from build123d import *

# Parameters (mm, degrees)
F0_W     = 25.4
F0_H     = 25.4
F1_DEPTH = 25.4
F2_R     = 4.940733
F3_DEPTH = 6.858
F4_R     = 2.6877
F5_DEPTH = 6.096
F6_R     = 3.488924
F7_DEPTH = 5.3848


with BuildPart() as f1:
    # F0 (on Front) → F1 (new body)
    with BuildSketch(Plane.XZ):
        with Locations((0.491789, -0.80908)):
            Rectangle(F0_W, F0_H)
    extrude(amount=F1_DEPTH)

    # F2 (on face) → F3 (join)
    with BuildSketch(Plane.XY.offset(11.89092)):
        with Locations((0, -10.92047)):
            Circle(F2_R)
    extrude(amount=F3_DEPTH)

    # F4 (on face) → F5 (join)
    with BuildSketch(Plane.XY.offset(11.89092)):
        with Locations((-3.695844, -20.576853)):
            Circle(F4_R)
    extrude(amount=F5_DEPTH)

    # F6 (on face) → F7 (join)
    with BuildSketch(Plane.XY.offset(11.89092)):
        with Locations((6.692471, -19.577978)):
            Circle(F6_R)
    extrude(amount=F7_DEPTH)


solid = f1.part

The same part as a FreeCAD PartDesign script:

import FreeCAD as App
import Part
import Sketcher

V = App.Vector
Q = App.Units.Quantity

doc = App.newDocument("Part")
body = doc.addObject("PartDesign::Body", "Body")

# Sketch on XZ plane
sketch1 = body.newObject("Sketcher::SketchObject", "Sketch")
sketch1.AttachmentSupport = (doc.getObject("XZ_Plane"), [""])
sketch1.MapMode = "FlatFace"
sketch1.addGeometry(Part.LineSegment(V(-12, 12, 0), V(-12, -14, 0)), False)
sketch1.addGeometry(Part.LineSegment(V(-12, -14, 0), V(13, -14, 0)), False)
sketch1.addGeometry(Part.LineSegment(V(13, -14, 0), V(13, 12, 0)), False)
sketch1.addGeometry(Part.LineSegment(V(13, 12, 0), V(-12, 12, 0)), False)
sketch1.addConstraint(Sketcher.Constraint("Coincident", 0, 2, 1, 1))
sketch1.addConstraint(Sketcher.Constraint("Coincident", 1, 2, 2, 1))
sketch1.addConstraint(Sketcher.Constraint("Coincident", 2, 2, 3, 1))
sketch1.addConstraint(Sketcher.Constraint("Coincident", 3, 2, 0, 1))
sketch1.addConstraint(Sketcher.Constraint("Vertical", 0))
sketch1.addConstraint(Sketcher.Constraint("Horizontal", 1))
sketch1.addConstraint(Sketcher.Constraint("Vertical", 2))
sketch1.addConstraint(Sketcher.Constraint("Horizontal", 3))
sketch1.addConstraint(Sketcher.Constraint("Equal", 3, 0))
sketch1.addConstraint(Sketcher.Constraint("DistanceX", 1, 1, 1, 2, Q("1 in")))
sketch1.addConstraint(Sketcher.Constraint("DistanceX", 0, 2, -1, 1, 12.208211))
sketch1.addConstraint(Sketcher.Constraint("DistanceY", 0, 2, -1, 1, 13.50908))
pad1 = body.newObject("PartDesign::Pad", "Pad")
pad1.Profile = sketch1
pad1.Length = Q("1 in")

# Sketch on XY plane
sketch2 = body.newObject("Sketcher::SketchObject", "Sketch001")
sketch2.AttachmentSupport = (doc.getObject("XY_Plane"), [""])
sketch2.MapMode = "FlatFace"
sketch2.AttachmentOffset = App.Placement(V(0, 0, 11.89092), App.Rotation())
sketch2.addGeometry(Part.Circle(V(0, -10.9, 0), V(0, 0, 1), 4.9), False)
sketch2.addConstraint(Sketcher.Constraint("PointOnObject", 0, 3, -2))
sketch2.addConstraint(Sketcher.Constraint("Diameter", 0, 9.881466))
sketch2.addConstraint(Sketcher.Constraint("DistanceY", 0, 3, -1, 1, 10.92047))
pad2 = body.newObject("PartDesign::Pad", "Pad001")
pad2.Profile = sketch2
pad2.Length = Q("0.27 in")

# Sketch on XY plane
sketch3 = body.newObject("Sketcher::SketchObject", "Sketch002")
sketch3.AttachmentSupport = (doc.getObject("XY_Plane"), [""])
sketch3.MapMode = "FlatFace"
sketch3.AttachmentOffset = App.Placement(V(0, 0, 11.89092), App.Rotation())
sketch3.addGeometry(Part.Circle(V(-3.7, -20.6, 0), V(0, 0, 1), 2.7), False)
sketch3.addConstraint(Sketcher.Constraint("Diameter", 0, 5.3754))
sketch3.addConstraint(Sketcher.Constraint("DistanceX", 0, 3, -1, 1, 3.695844))
sketch3.addConstraint(Sketcher.Constraint("DistanceY", 0, 3, -1, 1, 20.576853))
pad3 = body.newObject("PartDesign::Pad", "Pad002")
pad3.Profile = sketch3
pad3.Length = Q("0.24 in")

# Sketch on XY plane
sketch4 = body.newObject("Sketcher::SketchObject", "Sketch003")
sketch4.AttachmentSupport = (doc.getObject("XY_Plane"), [""])
sketch4.MapMode = "FlatFace"
sketch4.AttachmentOffset = App.Placement(V(0, 0, 11.89092), App.Rotation())
sketch4.addGeometry(Part.Circle(V(6.7, -19.6, 0), V(0, 0, 1), 3.5), False)
sketch4.addConstraint(Sketcher.Constraint("Diameter", 0, 6.977848))
sketch4.addConstraint(Sketcher.Constraint("DistanceX", -1, 1, 0, 3, 6.692471))
sketch4.addConstraint(Sketcher.Constraint("DistanceY", 0, 3, -1, 1, 19.577978))
pad4 = body.newObject("PartDesign::Pad", "Pad003")
pad4.Profile = sketch4
pad4.Length = Q("0.212 in")

doc.recompute()
